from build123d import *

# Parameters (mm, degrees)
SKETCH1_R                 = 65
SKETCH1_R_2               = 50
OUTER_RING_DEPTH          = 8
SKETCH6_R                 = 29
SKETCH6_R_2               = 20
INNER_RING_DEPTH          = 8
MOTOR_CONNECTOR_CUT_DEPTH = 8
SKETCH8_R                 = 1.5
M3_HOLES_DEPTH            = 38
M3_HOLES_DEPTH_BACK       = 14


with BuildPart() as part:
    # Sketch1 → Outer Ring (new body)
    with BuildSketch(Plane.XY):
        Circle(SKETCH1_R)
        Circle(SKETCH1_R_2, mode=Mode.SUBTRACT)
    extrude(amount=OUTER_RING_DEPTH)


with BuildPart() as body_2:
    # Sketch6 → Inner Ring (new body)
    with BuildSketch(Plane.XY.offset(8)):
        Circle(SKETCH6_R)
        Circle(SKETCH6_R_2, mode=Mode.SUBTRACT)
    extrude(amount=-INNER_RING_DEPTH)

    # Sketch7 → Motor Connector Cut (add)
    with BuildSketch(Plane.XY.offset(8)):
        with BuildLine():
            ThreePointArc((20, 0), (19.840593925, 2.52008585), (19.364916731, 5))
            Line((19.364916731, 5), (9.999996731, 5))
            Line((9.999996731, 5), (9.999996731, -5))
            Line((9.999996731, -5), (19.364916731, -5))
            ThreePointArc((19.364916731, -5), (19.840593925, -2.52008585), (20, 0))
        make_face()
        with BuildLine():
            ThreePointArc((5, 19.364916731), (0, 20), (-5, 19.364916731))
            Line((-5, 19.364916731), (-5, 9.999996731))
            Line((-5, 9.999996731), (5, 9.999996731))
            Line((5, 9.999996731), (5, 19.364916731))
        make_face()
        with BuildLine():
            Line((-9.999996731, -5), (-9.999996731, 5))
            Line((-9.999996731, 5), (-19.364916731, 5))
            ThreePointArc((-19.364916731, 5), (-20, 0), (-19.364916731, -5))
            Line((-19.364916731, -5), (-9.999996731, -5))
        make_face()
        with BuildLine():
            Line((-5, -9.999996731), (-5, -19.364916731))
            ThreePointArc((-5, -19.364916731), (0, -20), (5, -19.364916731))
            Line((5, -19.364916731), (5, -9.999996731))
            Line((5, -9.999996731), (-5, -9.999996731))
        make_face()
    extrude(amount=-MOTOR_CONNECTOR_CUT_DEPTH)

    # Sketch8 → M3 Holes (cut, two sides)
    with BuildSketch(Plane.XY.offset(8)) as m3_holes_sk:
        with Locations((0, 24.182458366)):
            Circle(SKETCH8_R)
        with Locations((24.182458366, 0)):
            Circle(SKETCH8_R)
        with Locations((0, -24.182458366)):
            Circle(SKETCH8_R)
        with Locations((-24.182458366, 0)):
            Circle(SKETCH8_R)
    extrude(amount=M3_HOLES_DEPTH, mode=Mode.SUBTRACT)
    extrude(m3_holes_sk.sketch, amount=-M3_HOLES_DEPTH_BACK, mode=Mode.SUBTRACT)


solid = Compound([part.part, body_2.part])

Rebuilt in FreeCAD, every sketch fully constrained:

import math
import FreeCAD as App
import Part
import Sketcher
from FreeCAD import Vector

doc = App.newDocument("Part")
body = doc.addObject("PartDesign::Body", "Body")

sketch1 = doc.addObject("Sketcher::SketchObject", "Sketch")
body.addObject(sketch1)
sketch1.AttachmentSupport = (doc.XY_Plane, [""])
sketch1.MapMode = "FlatFace"
sketch1.addGeometry([
    Part.Circle(Vector(0, 0, 0), Vector(0, 0, 1), 65),
    Part.Circle(Vector(0, 0, 0), Vector(0, 0, 1), 50),
], False)
sketch1.addConstraint([
    Sketcher.Constraint("Coincident", 0, 3, -1, 1),
    Sketcher.Constraint("Coincident", 1, 3, -1, 1),
    Sketcher.Constraint("Diameter", 0, 130.0),
    Sketcher.Constraint("Diameter", 1, 100.0),
])
pad1 = doc.addObject("PartDesign::Pad", "Pad")
body.addObject(pad1)
pad1.Profile = sketch1
pad1.Length = 8
body2 = doc.addObject("PartDesign::Body", "Body001")

sketch2 = doc.addObject("Sketcher::SketchObject", "Sketch001")
body2.addObject(sketch2)
sketch2.AttachmentSupport = (doc.getObject("XY_Plane001"), [""])
sketch2.MapMode = "FlatFace"
sketch2.AttachmentOffset = App.Placement(Vector(0, 0, 8), App.Rotation())
sketch2.addGeometry([
    Part.Circle(Vector(0, 0, 0), Vector(0, 0, 1), 29),
    Part.Circle(Vector(0, 0, 0), Vector(0, 0, 1), 20),
], False)
sketch2.addConstraint([
    Sketcher.Constraint("Coincident", 0, 3, -1, 1),
    Sketcher.Constraint("Coincident", 1, 3, -1, 1),
    Sketcher.Constraint("Diameter", 0, 58.0),
    Sketcher.Constraint("Diameter", 1, 40.0),
])
pad2 = doc.addObject("PartDesign::Pad", "Pad001")
body2.addObject(pad2)
pad2.Profile = sketch2
pad2.Length = 8
pad2.Reversed = True

sketch3 = doc.addObject("Sketcher::SketchObject", "Sketch002")
body2.addObject(sketch3)
sketch3.AttachmentSupport = (doc.getObject("XY_Plane001"), [""])
sketch3.MapMode = "FlatFace"
sketch3.AttachmentOffset = App.Placement(Vector(0, 0, 8), App.Rotation())
sketch3.addGeometry([
    Part.ArcOfCircle(Part.Circle(Vector(0, 0, 0), Vector(0, 0, 1), 20), math.radians(0), math.radians(14.48)),
    Part.LineSegment(Vector(19, 5, 0), Vector(10, 5, 0)),
    Part.LineSegment(Vector(10, 5, 0), Vector(10, -5, 0)),
    Part.LineSegment(Vector(10, -5, 0), Vector(19, -5, 0)),
    Part.ArcOfCircle(Part.Circle(Vector(0, 0, 0), Vector(0, 0, 1), 20), math.radians(-14.48), math.radians(0)),
    Part.ArcOfCircle(Part.Circle(Vector(0, 0, 0), Vector(0, 0, 1), 20), math.radians(76), math.radians(104)),
    Part.LineSegment(Vector(-5, 19, 0), Vector(-5, 10, 0)),
    Part.LineSegment(Vector(-5, 10, 0), Vector(5, 10, 0)),
    Part.LineSegment(Vector(5, 10, 0), Vector(5, 19, 0)),
    Part.LineSegment(Vector(-10, -5, 0), Vector(-10, 5, 0)),
    Part.LineSegment(Vector(-10, 5, 0), Vector(-19, 5, 0)),
    Part.ArcOfCircle(Part.Circle(Vector(0, 0, 0), Vector(0, 0, 1), 20), math.radians(166), math.radians(194)),
    Part.LineSegment(Vector(-19, -5, 0), Vector(-10, -5, 0)),
    Part.LineSegment(Vector(-5, -10, 0), Vector(-5, -19, 0)),
    Part.ArcOfCircle(Part.Circle(Vector(0, 0, 0), Vector(0, 0, 1), 20), math.radians(-104), math.radians(-76)),
    Part.LineSegment(Vector(5, -19, 0), Vector(5, -10, 0)),
    Part.LineSegment(Vector(5, -10, 0), Vector(-5, -10, 0)),
], False)
sketch3.addConstraint([
    Sketcher.Constraint("Coincident", 0, 2, 1, 1),
    Sketcher.Constraint("Coincident", 1, 2, 2, 1),
    Sketcher.Constraint("Coincident", 2, 2, 3, 1),
    Sketcher.Constraint("Coincident", 3, 2, 4, 1),
    Sketcher.Constraint("Tangent", 4, 2, 0, 1),
    Sketcher.Constraint("Coincident", 5, 2, 6, 1),
    Sketcher.Constraint("Coincident", 6, 2, 7, 1),
    Sketcher.Constraint("Coincident", 7, 2, 8, 1),
    Sketcher.Constraint("Coincident", 8, 2, 5, 1),
    Sketcher.Constraint("Coincident", 9, 2, 10, 1),
    Sketcher.Constraint("Coincident", 10, 2, 11, 1),
    Sketcher.Constraint("Coincident", 11, 2, 12, 1),
    Sketcher.Constraint("Coincident", 12, 2, 9, 1),
    Sketcher.Constraint("Coincident", 13, 2, 14, 1),
    Sketcher.Constraint("Coincident", 14, 2, 15, 1),
    Sketcher.Constraint("Coincident", 15, 2, 16, 1),
    Sketcher.Constraint("Coincident", 16, 2, 13, 1),
    Sketcher.Constraint("Horizontal", 1),
    Sketcher.Constraint("Vertical", 2),
    Sketcher.Constraint("Horizontal", 3),
    Sketcher.Constraint("Vertical", 6),
    Sketcher.Constraint("Horizontal", 7),
    Sketcher.Constraint("Vertical", 8),
    Sketcher.Constraint("Vertical", 9),
    Sketcher.Constraint("Horizontal", 10),
    Sketcher.Constraint("Horizontal", 12),
    Sketcher.Constraint("Vertical", 13),
    Sketcher.Constraint("Vertical", 15),
    Sketcher.Constraint("Horizontal", 16),
    Sketcher.Constraint("Coincident", 0, 3, -1, 1),
    Sketcher.Constraint("Coincident", 5, 3, -1, 1),
    Sketcher.Constraint("Coincident", 11, 3, -1, 1),
    Sketcher.Constraint("Coincident", 14, 3, -1, 1),
    Sketcher.Constraint("Equal", 0, 4),
    Sketcher.Constraint("Equal", 4, 5),
    Sketcher.Constraint("Equal", 5, 11),
    Sketcher.Constraint("Equal", 11, 14),
    Sketcher.Constraint("Symmetric", 2, 2, 9, 2, -1, 1),
    Sketcher.Constraint("Symmetric", 6, 2, 15, 2, -1, 1),
    Sketcher.Constraint("PointOnObject", 4, 2, -1),
    Sketcher.Constraint("Horizontal", 5, 2, 8, 2),
    Sketcher.Constraint("Horizontal", 1, 2, 9, 2),
    Sketcher.Constraint("Horizontal", 3, 2, 11, 2),
    Sketcher.Constraint("Horizontal", 13, 2, 14, 2),
    Sketcher.Constraint("Equal", 16, 2),
    Sketcher.Constraint("Equal", 12, 6),
    Sketcher.Constraint("Radius", 0, 20.0),
    Sketcher.Constraint("DistanceX", 7, 1, 7, 2, 10.0),
    Sketcher.Constraint("DistanceX", 1, 2, 1, 1, 9.36492),
])
pad3 = doc.addObject("PartDesign::Pad", "Pad002")
body2.addObject(pad3)
pad3.Profile = sketch3
pad3.Length = 8
pad3.Reversed = True

sketch4 = doc.addObject("Sketcher::SketchObject", "Sketch003")
body2.addObject(sketch4)
sketch4.AttachmentSupport = (doc.getObject("XY_Plane001"), [""])
sketch4.MapMode = "FlatFace"
sketch4.AttachmentOffset = App.Placement(Vector(0, 0, 8), App.Rotation())
sketch4.addGeometry([
    Part.Circle(Vector(0, 24.2, 0), Vector(0, 0, 1), 1.5),
    Part.Circle(Vector(24.2, 0, 0), Vector(0, 0, 1), 1.5),
    Part.Circle(Vector(0, -24.2, 0), Vector(0, 0, 1), 1.5),
    Part.Circle(Vector(-24.2, 0, 0), Vector(0, 0, 1), 1.5),
], False)
sketch4.addConstraint([
    Sketcher.Constraint("Equal", 0, 1),
    Sketcher.Constraint("Equal", 1, 2),
    Sketcher.Constraint("Equal", 2, 3),
    Sketcher.Constraint("Symmetric", 0, 3, 2, 3, -1, 1),
    Sketcher.Constraint("Symmetric", 1, 3, 3, 3, -1, 1),
    Sketcher.Constraint("PointOnObject", 0, 3, -2),
    Sketcher.Constraint("PointOnObject", 1, 3, -1),
    Sketcher.Constraint("Diameter", 0, 3.0),
    Sketcher.Constraint("DistanceY", -1, 1, 0, 3, 24.182458),
    Sketcher.Constraint("DistanceX", -1, 1, 1, 3, 24.182458),
])
pocket1 = doc.addObject("PartDesign::Pocket", "Pocket")
body2.addObject(pocket1)
pocket1.Profile = sketch4
pocket1.Type = "ThroughAll"
pocket1.Midplane = True

doc.recompute()
